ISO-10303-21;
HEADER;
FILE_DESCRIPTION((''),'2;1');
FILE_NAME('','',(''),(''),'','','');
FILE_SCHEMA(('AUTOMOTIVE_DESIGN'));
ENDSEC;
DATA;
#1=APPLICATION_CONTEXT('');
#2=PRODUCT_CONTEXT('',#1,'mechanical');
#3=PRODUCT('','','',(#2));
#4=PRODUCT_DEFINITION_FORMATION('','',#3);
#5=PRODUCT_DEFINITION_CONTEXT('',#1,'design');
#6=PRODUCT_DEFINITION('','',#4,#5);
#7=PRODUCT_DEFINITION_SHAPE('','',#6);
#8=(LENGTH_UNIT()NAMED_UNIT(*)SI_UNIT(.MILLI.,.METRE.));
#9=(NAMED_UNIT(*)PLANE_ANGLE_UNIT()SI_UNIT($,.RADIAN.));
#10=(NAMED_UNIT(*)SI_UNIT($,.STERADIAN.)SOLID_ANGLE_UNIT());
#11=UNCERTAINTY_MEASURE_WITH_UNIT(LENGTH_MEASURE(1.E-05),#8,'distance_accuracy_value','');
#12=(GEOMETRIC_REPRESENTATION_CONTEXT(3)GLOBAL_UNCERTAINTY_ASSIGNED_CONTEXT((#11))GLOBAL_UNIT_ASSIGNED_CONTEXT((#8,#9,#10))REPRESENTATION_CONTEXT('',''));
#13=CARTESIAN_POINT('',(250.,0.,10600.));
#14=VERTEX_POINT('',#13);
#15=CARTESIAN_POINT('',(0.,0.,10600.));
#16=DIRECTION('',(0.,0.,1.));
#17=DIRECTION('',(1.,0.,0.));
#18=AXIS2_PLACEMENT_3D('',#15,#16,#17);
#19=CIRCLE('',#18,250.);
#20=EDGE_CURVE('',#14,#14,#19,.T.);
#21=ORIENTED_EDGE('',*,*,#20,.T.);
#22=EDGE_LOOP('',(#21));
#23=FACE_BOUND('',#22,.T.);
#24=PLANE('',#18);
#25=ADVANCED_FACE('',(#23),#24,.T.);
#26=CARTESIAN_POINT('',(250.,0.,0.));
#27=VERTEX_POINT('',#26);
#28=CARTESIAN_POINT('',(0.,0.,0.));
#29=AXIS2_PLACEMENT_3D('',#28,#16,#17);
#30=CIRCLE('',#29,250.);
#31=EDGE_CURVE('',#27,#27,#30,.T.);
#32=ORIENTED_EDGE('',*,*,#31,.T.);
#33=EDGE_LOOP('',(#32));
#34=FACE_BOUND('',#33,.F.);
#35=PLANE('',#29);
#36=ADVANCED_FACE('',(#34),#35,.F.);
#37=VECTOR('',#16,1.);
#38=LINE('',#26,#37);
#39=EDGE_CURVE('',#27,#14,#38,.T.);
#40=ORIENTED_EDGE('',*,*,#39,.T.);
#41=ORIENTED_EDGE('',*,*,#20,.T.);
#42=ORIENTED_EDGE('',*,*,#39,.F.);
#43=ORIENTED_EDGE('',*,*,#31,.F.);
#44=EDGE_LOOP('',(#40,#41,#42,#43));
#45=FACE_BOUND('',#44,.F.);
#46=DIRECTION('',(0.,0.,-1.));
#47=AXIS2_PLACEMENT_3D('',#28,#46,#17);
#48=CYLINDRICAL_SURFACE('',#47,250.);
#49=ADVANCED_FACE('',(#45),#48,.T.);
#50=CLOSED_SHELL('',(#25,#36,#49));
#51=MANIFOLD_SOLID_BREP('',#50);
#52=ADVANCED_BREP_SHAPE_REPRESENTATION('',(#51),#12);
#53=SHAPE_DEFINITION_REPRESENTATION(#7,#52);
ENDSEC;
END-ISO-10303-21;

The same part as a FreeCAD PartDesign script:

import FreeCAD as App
import Part
import Sketcher
Q = App.Units.Quantity

doc = App.newDocument("Part")
body = doc.addObject("PartDesign::Body", "Body")

# Sketch on XY plane
sketch1 = body.newObject("Sketcher::SketchObject", "Sketch")
sketch1.AttachmentSupport = (doc.getObject("XY_Plane"), [""])
sketch1.MapMode = "FlatFace"
sketch1.addGeometry(Part.Circle(App.Vector(0, 0, 0), App.Vector(0, 0, 1), 250), False)
sketch1.addConstraint([
    Sketcher.Constraint("Coincident", 0, 3, -1, 1),
    Sketcher.Constraint("Diameter", 0, Q("500 mm")),
])
pad1 = body.newObject("PartDesign::Pad", "Pad")
pad1.Profile = sketch1
pad1.Length = 10600

doc.recompute()
